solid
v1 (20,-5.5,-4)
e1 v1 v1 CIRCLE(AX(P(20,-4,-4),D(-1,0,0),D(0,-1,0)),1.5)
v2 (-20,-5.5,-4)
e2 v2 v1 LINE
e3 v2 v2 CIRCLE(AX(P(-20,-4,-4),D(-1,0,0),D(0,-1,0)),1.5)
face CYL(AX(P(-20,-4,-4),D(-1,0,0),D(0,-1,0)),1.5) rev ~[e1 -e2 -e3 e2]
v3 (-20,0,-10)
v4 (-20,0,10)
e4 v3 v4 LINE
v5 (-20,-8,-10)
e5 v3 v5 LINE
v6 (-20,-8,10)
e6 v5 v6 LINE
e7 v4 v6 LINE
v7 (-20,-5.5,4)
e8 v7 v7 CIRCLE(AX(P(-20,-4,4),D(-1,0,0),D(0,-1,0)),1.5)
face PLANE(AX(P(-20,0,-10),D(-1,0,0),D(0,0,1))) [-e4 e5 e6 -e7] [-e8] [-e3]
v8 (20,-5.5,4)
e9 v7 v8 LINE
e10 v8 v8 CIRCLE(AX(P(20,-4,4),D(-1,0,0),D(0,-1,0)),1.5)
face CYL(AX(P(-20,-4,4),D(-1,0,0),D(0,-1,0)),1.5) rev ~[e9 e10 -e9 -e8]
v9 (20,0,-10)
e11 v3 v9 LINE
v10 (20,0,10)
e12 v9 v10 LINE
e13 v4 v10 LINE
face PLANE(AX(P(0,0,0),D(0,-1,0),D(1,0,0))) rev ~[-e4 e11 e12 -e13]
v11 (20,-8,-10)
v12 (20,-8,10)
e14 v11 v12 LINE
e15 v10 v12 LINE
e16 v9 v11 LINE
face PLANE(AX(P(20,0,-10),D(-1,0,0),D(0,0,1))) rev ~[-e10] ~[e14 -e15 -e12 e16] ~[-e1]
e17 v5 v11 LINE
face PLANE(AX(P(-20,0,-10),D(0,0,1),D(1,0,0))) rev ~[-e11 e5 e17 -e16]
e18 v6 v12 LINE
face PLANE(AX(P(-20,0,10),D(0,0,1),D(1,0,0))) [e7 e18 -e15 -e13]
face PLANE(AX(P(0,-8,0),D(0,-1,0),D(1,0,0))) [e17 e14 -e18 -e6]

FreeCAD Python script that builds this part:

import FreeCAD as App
import Part
import Sketcher
from FreeCAD import Vector


def add_polygon(sketch, points):
    """Adds a closed chain of lines whose ends are joined by coincident constraints."""
    first, n = sketch.GeometryCount, len(points)
    for a, b in zip(points, points[1:] + points[:1]):
        sketch.addGeometry(Part.LineSegment(App.Vector(*a, 0), App.Vector(*b, 0)), False)
    for i in range(n):
        sketch.addConstraint(Sketcher.Constraint("Coincident", first + i, 2, first + (i + 1) % n, 1))

doc = App.newDocument("Part")
body = doc.addObject("PartDesign::Body", "Body")

# Sketch on XZ plane
sketch1 = body.newObject("Sketcher::SketchObject", "Sketch")
sketch1.AttachmentSupport = (doc.getObject("XZ_Plane"), [""])
sketch1.MapMode = "FlatFace"
add_polygon(sketch1, [(-20, 10), (-20, -10), (20, -10), (20, 10)])  # lines 0-3
sketch1.addConstraint(Sketcher.Constraint("Vertical", 0))
sketch1.addConstraint(Sketcher.Constraint("Horizontal", 1))
sketch1.addConstraint(Sketcher.Constraint("Vertical", 2))
sketch1.addConstraint(Sketcher.Constraint("Horizontal", 3))
sketch1.addConstraint(Sketcher.Constraint("Symmetric", 0, 2, 2, 2, -1, 1))
sketch1.addConstraint(Sketcher.Constraint("DistanceX", 1, 1, 1, 2, 40.0))
sketch1.addConstraint(Sketcher.Constraint("DistanceY", 0, 2, 0, 1, 20.0))
pad1 = body.newObject("PartDesign::Pad", "Pad")
pad1.Profile = sketch1
pad1.Length = 8

# Sketch on YZ plane
sketch2 = body.newObject("Sketcher::SketchObject", "Sketch001")
sketch2.AttachmentSupport = (doc.getObject("YZ_Plane"), [""])
sketch2.MapMode = "FlatFace"
sketch2.AttachmentOffset = App.Placement(Vector(0, 0, -20), App.Rotation())
sketch2.addGeometry(Part.Circle(Vector(-4, 4, 0), Vector(0, 0, 1), 1.5), False)
sketch2.addGeometry(Part.Circle(Vector(-4, -4, 0), Vector(0, 0, 1), 1.5), False)
sketch2.addConstraint(Sketcher.Constraint("Equal", 0, 1))
sketch2.addConstraint(Sketcher.Constraint("Symmetric", 0, 3, 1, 3, -1))
sketch2.addConstraint(Sketcher.Constraint("Diameter", 0, 3.0))
sketch2.addConstraint(Sketcher.Constraint("DistanceX", 0, 3, -1, 1, 4.0))
sketch2.addConstraint(Sketcher.Constraint("DistanceY", -1, 1, 0, 3, 4.0))
pocket1 = body.newObject("PartDesign::Pocket", "Pocket")
pocket1.Profile = sketch2
pocket1.Type = "ThroughAll"
pocket1.Reversed = True

doc.recompute()
